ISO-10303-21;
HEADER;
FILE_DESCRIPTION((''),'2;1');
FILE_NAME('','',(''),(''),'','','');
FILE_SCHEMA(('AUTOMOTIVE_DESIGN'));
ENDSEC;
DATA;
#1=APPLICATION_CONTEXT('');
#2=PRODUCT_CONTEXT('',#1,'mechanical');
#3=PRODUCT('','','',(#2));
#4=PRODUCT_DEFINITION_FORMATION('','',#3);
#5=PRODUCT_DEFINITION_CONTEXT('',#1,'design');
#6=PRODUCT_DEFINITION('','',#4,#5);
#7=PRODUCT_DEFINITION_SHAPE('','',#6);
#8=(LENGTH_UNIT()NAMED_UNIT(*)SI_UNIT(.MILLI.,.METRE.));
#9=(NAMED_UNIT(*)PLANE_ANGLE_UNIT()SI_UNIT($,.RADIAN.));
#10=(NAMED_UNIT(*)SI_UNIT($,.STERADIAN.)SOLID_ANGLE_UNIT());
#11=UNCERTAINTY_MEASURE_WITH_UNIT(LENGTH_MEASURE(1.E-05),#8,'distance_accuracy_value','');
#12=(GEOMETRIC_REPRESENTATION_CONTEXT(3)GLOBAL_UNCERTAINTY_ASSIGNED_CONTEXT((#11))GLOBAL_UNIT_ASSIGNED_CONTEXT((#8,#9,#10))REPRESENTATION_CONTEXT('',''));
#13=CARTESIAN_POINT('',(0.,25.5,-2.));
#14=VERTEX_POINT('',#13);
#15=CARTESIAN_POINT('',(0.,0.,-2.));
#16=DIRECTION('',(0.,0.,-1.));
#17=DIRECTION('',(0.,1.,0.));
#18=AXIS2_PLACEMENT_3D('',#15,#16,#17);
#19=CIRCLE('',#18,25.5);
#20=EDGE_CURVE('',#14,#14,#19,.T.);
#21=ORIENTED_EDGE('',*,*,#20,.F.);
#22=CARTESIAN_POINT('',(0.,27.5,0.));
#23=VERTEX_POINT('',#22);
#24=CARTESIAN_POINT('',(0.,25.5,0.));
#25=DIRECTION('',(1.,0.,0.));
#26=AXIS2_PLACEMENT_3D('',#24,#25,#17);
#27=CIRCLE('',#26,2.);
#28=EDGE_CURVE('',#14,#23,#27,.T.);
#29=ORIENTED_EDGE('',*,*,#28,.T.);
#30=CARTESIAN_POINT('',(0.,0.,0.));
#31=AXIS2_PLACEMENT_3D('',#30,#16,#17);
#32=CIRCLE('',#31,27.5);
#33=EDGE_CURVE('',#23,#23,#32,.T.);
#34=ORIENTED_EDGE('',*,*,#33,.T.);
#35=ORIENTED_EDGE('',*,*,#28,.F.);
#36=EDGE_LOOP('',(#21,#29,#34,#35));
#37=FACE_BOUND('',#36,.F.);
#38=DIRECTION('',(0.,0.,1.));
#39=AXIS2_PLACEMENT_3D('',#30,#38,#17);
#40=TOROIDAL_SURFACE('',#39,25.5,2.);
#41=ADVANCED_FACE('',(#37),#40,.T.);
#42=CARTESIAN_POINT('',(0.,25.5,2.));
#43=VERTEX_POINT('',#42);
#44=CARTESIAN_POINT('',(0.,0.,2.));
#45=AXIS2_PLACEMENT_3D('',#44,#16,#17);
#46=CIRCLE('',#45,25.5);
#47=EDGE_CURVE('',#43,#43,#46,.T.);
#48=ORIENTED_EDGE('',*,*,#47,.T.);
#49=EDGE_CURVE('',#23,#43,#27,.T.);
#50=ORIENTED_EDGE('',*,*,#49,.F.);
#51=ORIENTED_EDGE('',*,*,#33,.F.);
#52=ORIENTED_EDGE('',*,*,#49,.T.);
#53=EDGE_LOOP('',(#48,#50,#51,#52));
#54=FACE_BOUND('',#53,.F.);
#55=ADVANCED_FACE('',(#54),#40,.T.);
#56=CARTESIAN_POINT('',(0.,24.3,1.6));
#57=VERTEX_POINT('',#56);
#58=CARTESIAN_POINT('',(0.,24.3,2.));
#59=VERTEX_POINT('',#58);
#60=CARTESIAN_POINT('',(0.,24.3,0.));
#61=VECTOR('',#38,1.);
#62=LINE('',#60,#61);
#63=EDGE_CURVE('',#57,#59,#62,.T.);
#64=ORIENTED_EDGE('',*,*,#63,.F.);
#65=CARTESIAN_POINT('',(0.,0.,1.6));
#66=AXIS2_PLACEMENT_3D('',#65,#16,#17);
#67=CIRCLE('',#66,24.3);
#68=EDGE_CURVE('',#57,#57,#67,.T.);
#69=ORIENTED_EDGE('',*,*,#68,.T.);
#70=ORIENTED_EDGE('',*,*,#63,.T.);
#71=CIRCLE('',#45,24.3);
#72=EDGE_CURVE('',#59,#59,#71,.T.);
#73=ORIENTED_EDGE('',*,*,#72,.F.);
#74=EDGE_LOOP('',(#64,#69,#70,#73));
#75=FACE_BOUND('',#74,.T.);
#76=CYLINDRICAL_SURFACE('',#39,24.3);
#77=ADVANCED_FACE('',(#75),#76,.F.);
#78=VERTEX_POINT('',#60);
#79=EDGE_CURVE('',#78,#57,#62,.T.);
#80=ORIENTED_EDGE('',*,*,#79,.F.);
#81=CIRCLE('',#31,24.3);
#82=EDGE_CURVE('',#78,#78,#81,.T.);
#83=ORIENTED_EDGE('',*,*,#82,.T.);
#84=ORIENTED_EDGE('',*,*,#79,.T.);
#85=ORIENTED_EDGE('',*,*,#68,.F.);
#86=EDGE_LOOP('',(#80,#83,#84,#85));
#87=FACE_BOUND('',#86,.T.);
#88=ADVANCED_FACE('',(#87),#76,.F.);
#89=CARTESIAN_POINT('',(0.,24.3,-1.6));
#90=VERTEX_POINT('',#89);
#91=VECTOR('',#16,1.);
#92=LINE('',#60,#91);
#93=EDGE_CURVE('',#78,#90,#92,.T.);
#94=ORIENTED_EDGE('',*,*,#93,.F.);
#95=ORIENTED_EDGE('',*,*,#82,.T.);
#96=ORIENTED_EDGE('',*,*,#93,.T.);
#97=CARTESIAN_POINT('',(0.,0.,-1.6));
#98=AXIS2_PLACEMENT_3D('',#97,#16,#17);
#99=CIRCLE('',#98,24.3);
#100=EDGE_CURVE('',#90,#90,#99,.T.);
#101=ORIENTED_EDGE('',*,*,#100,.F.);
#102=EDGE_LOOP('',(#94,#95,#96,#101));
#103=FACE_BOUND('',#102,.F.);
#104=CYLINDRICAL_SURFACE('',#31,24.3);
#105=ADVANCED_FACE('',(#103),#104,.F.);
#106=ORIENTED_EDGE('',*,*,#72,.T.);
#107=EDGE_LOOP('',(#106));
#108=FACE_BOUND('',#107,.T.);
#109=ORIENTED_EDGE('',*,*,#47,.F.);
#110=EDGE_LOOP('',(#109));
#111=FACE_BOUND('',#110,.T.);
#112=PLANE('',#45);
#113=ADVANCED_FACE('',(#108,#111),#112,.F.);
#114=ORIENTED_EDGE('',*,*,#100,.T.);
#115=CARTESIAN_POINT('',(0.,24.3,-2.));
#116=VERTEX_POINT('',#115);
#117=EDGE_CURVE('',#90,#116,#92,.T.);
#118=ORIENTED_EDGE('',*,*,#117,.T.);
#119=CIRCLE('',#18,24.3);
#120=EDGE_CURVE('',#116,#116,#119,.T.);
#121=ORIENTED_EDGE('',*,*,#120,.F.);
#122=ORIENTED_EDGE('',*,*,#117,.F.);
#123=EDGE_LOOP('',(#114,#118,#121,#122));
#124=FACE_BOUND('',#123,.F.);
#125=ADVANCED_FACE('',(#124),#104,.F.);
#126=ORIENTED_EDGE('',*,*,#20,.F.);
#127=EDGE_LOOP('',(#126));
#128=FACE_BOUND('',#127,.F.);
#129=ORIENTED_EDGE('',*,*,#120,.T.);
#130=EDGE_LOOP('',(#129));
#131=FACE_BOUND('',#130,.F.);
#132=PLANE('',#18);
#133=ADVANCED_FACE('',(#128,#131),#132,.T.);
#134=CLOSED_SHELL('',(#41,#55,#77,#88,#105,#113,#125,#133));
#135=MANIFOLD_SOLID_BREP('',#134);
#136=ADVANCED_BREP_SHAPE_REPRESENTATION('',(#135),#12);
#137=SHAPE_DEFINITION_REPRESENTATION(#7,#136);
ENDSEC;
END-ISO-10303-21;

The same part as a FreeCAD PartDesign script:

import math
import FreeCAD as App
import Part
import Sketcher

V = App.Vector

doc = App.newDocument("Part")
body = doc.addObject("PartDesign::Body", "Body")

# Sketch on YZ plane
sketch1 = doc.addObject("Sketcher::SketchObject", "Sketch")
body.addObject(sketch1)
sketch1.AttachmentSupport = (doc.YZ_Plane, [""])
sketch1.MapMode = "FlatFace"
sketch1.addGeometry([
    Part.LineSegment(V(24.3, -2, 0), V(25.5, -2, 0)),
    Part.ArcOfCircle(Part.Circle(V(25.5, 0, 0), V(0, 0, 1), 2), math.radians(-90), math.radians(90)),
    Part.LineSegment(V(25.5, 2, 0), V(24.3, 2, 0)),
    Part.LineSegment(V(24.3, 2, 0), V(24.3, -2, 0)),
], False)
sketch1.addConstraint([
    Sketcher.Constraint("Tangent", 0, 2, 1, 1),
    Sketcher.Constraint("Tangent", 1, 2, 2, 1),
    Sketcher.Constraint("Coincident", 2, 2, 3, 1),
    Sketcher.Constraint("Coincident", 3, 2, 0, 1),
    Sketcher.Constraint("Horizontal", 0),
    Sketcher.Constraint("Horizontal", 2),
    Sketcher.Constraint("Vertical", 3),
    Sketcher.Constraint("PointOnObject", 1, 3, -1),
    Sketcher.Constraint("Radius", 1, 2.0),
    Sketcher.Constraint("DistanceX", -1, 1, 2, 2, 24.3),
    Sketcher.Constraint("DistanceX", 0, 1, 0, 2, 1.2),
])
revolution = doc.addObject("PartDesign::Revolution", "Revolution")
body.addObject(revolution)
revolution.Profile = sketch1
revolution.ReferenceAxis = (sketch1, ["V_Axis"])
revolution.Angle = 360

doc.recompute()
